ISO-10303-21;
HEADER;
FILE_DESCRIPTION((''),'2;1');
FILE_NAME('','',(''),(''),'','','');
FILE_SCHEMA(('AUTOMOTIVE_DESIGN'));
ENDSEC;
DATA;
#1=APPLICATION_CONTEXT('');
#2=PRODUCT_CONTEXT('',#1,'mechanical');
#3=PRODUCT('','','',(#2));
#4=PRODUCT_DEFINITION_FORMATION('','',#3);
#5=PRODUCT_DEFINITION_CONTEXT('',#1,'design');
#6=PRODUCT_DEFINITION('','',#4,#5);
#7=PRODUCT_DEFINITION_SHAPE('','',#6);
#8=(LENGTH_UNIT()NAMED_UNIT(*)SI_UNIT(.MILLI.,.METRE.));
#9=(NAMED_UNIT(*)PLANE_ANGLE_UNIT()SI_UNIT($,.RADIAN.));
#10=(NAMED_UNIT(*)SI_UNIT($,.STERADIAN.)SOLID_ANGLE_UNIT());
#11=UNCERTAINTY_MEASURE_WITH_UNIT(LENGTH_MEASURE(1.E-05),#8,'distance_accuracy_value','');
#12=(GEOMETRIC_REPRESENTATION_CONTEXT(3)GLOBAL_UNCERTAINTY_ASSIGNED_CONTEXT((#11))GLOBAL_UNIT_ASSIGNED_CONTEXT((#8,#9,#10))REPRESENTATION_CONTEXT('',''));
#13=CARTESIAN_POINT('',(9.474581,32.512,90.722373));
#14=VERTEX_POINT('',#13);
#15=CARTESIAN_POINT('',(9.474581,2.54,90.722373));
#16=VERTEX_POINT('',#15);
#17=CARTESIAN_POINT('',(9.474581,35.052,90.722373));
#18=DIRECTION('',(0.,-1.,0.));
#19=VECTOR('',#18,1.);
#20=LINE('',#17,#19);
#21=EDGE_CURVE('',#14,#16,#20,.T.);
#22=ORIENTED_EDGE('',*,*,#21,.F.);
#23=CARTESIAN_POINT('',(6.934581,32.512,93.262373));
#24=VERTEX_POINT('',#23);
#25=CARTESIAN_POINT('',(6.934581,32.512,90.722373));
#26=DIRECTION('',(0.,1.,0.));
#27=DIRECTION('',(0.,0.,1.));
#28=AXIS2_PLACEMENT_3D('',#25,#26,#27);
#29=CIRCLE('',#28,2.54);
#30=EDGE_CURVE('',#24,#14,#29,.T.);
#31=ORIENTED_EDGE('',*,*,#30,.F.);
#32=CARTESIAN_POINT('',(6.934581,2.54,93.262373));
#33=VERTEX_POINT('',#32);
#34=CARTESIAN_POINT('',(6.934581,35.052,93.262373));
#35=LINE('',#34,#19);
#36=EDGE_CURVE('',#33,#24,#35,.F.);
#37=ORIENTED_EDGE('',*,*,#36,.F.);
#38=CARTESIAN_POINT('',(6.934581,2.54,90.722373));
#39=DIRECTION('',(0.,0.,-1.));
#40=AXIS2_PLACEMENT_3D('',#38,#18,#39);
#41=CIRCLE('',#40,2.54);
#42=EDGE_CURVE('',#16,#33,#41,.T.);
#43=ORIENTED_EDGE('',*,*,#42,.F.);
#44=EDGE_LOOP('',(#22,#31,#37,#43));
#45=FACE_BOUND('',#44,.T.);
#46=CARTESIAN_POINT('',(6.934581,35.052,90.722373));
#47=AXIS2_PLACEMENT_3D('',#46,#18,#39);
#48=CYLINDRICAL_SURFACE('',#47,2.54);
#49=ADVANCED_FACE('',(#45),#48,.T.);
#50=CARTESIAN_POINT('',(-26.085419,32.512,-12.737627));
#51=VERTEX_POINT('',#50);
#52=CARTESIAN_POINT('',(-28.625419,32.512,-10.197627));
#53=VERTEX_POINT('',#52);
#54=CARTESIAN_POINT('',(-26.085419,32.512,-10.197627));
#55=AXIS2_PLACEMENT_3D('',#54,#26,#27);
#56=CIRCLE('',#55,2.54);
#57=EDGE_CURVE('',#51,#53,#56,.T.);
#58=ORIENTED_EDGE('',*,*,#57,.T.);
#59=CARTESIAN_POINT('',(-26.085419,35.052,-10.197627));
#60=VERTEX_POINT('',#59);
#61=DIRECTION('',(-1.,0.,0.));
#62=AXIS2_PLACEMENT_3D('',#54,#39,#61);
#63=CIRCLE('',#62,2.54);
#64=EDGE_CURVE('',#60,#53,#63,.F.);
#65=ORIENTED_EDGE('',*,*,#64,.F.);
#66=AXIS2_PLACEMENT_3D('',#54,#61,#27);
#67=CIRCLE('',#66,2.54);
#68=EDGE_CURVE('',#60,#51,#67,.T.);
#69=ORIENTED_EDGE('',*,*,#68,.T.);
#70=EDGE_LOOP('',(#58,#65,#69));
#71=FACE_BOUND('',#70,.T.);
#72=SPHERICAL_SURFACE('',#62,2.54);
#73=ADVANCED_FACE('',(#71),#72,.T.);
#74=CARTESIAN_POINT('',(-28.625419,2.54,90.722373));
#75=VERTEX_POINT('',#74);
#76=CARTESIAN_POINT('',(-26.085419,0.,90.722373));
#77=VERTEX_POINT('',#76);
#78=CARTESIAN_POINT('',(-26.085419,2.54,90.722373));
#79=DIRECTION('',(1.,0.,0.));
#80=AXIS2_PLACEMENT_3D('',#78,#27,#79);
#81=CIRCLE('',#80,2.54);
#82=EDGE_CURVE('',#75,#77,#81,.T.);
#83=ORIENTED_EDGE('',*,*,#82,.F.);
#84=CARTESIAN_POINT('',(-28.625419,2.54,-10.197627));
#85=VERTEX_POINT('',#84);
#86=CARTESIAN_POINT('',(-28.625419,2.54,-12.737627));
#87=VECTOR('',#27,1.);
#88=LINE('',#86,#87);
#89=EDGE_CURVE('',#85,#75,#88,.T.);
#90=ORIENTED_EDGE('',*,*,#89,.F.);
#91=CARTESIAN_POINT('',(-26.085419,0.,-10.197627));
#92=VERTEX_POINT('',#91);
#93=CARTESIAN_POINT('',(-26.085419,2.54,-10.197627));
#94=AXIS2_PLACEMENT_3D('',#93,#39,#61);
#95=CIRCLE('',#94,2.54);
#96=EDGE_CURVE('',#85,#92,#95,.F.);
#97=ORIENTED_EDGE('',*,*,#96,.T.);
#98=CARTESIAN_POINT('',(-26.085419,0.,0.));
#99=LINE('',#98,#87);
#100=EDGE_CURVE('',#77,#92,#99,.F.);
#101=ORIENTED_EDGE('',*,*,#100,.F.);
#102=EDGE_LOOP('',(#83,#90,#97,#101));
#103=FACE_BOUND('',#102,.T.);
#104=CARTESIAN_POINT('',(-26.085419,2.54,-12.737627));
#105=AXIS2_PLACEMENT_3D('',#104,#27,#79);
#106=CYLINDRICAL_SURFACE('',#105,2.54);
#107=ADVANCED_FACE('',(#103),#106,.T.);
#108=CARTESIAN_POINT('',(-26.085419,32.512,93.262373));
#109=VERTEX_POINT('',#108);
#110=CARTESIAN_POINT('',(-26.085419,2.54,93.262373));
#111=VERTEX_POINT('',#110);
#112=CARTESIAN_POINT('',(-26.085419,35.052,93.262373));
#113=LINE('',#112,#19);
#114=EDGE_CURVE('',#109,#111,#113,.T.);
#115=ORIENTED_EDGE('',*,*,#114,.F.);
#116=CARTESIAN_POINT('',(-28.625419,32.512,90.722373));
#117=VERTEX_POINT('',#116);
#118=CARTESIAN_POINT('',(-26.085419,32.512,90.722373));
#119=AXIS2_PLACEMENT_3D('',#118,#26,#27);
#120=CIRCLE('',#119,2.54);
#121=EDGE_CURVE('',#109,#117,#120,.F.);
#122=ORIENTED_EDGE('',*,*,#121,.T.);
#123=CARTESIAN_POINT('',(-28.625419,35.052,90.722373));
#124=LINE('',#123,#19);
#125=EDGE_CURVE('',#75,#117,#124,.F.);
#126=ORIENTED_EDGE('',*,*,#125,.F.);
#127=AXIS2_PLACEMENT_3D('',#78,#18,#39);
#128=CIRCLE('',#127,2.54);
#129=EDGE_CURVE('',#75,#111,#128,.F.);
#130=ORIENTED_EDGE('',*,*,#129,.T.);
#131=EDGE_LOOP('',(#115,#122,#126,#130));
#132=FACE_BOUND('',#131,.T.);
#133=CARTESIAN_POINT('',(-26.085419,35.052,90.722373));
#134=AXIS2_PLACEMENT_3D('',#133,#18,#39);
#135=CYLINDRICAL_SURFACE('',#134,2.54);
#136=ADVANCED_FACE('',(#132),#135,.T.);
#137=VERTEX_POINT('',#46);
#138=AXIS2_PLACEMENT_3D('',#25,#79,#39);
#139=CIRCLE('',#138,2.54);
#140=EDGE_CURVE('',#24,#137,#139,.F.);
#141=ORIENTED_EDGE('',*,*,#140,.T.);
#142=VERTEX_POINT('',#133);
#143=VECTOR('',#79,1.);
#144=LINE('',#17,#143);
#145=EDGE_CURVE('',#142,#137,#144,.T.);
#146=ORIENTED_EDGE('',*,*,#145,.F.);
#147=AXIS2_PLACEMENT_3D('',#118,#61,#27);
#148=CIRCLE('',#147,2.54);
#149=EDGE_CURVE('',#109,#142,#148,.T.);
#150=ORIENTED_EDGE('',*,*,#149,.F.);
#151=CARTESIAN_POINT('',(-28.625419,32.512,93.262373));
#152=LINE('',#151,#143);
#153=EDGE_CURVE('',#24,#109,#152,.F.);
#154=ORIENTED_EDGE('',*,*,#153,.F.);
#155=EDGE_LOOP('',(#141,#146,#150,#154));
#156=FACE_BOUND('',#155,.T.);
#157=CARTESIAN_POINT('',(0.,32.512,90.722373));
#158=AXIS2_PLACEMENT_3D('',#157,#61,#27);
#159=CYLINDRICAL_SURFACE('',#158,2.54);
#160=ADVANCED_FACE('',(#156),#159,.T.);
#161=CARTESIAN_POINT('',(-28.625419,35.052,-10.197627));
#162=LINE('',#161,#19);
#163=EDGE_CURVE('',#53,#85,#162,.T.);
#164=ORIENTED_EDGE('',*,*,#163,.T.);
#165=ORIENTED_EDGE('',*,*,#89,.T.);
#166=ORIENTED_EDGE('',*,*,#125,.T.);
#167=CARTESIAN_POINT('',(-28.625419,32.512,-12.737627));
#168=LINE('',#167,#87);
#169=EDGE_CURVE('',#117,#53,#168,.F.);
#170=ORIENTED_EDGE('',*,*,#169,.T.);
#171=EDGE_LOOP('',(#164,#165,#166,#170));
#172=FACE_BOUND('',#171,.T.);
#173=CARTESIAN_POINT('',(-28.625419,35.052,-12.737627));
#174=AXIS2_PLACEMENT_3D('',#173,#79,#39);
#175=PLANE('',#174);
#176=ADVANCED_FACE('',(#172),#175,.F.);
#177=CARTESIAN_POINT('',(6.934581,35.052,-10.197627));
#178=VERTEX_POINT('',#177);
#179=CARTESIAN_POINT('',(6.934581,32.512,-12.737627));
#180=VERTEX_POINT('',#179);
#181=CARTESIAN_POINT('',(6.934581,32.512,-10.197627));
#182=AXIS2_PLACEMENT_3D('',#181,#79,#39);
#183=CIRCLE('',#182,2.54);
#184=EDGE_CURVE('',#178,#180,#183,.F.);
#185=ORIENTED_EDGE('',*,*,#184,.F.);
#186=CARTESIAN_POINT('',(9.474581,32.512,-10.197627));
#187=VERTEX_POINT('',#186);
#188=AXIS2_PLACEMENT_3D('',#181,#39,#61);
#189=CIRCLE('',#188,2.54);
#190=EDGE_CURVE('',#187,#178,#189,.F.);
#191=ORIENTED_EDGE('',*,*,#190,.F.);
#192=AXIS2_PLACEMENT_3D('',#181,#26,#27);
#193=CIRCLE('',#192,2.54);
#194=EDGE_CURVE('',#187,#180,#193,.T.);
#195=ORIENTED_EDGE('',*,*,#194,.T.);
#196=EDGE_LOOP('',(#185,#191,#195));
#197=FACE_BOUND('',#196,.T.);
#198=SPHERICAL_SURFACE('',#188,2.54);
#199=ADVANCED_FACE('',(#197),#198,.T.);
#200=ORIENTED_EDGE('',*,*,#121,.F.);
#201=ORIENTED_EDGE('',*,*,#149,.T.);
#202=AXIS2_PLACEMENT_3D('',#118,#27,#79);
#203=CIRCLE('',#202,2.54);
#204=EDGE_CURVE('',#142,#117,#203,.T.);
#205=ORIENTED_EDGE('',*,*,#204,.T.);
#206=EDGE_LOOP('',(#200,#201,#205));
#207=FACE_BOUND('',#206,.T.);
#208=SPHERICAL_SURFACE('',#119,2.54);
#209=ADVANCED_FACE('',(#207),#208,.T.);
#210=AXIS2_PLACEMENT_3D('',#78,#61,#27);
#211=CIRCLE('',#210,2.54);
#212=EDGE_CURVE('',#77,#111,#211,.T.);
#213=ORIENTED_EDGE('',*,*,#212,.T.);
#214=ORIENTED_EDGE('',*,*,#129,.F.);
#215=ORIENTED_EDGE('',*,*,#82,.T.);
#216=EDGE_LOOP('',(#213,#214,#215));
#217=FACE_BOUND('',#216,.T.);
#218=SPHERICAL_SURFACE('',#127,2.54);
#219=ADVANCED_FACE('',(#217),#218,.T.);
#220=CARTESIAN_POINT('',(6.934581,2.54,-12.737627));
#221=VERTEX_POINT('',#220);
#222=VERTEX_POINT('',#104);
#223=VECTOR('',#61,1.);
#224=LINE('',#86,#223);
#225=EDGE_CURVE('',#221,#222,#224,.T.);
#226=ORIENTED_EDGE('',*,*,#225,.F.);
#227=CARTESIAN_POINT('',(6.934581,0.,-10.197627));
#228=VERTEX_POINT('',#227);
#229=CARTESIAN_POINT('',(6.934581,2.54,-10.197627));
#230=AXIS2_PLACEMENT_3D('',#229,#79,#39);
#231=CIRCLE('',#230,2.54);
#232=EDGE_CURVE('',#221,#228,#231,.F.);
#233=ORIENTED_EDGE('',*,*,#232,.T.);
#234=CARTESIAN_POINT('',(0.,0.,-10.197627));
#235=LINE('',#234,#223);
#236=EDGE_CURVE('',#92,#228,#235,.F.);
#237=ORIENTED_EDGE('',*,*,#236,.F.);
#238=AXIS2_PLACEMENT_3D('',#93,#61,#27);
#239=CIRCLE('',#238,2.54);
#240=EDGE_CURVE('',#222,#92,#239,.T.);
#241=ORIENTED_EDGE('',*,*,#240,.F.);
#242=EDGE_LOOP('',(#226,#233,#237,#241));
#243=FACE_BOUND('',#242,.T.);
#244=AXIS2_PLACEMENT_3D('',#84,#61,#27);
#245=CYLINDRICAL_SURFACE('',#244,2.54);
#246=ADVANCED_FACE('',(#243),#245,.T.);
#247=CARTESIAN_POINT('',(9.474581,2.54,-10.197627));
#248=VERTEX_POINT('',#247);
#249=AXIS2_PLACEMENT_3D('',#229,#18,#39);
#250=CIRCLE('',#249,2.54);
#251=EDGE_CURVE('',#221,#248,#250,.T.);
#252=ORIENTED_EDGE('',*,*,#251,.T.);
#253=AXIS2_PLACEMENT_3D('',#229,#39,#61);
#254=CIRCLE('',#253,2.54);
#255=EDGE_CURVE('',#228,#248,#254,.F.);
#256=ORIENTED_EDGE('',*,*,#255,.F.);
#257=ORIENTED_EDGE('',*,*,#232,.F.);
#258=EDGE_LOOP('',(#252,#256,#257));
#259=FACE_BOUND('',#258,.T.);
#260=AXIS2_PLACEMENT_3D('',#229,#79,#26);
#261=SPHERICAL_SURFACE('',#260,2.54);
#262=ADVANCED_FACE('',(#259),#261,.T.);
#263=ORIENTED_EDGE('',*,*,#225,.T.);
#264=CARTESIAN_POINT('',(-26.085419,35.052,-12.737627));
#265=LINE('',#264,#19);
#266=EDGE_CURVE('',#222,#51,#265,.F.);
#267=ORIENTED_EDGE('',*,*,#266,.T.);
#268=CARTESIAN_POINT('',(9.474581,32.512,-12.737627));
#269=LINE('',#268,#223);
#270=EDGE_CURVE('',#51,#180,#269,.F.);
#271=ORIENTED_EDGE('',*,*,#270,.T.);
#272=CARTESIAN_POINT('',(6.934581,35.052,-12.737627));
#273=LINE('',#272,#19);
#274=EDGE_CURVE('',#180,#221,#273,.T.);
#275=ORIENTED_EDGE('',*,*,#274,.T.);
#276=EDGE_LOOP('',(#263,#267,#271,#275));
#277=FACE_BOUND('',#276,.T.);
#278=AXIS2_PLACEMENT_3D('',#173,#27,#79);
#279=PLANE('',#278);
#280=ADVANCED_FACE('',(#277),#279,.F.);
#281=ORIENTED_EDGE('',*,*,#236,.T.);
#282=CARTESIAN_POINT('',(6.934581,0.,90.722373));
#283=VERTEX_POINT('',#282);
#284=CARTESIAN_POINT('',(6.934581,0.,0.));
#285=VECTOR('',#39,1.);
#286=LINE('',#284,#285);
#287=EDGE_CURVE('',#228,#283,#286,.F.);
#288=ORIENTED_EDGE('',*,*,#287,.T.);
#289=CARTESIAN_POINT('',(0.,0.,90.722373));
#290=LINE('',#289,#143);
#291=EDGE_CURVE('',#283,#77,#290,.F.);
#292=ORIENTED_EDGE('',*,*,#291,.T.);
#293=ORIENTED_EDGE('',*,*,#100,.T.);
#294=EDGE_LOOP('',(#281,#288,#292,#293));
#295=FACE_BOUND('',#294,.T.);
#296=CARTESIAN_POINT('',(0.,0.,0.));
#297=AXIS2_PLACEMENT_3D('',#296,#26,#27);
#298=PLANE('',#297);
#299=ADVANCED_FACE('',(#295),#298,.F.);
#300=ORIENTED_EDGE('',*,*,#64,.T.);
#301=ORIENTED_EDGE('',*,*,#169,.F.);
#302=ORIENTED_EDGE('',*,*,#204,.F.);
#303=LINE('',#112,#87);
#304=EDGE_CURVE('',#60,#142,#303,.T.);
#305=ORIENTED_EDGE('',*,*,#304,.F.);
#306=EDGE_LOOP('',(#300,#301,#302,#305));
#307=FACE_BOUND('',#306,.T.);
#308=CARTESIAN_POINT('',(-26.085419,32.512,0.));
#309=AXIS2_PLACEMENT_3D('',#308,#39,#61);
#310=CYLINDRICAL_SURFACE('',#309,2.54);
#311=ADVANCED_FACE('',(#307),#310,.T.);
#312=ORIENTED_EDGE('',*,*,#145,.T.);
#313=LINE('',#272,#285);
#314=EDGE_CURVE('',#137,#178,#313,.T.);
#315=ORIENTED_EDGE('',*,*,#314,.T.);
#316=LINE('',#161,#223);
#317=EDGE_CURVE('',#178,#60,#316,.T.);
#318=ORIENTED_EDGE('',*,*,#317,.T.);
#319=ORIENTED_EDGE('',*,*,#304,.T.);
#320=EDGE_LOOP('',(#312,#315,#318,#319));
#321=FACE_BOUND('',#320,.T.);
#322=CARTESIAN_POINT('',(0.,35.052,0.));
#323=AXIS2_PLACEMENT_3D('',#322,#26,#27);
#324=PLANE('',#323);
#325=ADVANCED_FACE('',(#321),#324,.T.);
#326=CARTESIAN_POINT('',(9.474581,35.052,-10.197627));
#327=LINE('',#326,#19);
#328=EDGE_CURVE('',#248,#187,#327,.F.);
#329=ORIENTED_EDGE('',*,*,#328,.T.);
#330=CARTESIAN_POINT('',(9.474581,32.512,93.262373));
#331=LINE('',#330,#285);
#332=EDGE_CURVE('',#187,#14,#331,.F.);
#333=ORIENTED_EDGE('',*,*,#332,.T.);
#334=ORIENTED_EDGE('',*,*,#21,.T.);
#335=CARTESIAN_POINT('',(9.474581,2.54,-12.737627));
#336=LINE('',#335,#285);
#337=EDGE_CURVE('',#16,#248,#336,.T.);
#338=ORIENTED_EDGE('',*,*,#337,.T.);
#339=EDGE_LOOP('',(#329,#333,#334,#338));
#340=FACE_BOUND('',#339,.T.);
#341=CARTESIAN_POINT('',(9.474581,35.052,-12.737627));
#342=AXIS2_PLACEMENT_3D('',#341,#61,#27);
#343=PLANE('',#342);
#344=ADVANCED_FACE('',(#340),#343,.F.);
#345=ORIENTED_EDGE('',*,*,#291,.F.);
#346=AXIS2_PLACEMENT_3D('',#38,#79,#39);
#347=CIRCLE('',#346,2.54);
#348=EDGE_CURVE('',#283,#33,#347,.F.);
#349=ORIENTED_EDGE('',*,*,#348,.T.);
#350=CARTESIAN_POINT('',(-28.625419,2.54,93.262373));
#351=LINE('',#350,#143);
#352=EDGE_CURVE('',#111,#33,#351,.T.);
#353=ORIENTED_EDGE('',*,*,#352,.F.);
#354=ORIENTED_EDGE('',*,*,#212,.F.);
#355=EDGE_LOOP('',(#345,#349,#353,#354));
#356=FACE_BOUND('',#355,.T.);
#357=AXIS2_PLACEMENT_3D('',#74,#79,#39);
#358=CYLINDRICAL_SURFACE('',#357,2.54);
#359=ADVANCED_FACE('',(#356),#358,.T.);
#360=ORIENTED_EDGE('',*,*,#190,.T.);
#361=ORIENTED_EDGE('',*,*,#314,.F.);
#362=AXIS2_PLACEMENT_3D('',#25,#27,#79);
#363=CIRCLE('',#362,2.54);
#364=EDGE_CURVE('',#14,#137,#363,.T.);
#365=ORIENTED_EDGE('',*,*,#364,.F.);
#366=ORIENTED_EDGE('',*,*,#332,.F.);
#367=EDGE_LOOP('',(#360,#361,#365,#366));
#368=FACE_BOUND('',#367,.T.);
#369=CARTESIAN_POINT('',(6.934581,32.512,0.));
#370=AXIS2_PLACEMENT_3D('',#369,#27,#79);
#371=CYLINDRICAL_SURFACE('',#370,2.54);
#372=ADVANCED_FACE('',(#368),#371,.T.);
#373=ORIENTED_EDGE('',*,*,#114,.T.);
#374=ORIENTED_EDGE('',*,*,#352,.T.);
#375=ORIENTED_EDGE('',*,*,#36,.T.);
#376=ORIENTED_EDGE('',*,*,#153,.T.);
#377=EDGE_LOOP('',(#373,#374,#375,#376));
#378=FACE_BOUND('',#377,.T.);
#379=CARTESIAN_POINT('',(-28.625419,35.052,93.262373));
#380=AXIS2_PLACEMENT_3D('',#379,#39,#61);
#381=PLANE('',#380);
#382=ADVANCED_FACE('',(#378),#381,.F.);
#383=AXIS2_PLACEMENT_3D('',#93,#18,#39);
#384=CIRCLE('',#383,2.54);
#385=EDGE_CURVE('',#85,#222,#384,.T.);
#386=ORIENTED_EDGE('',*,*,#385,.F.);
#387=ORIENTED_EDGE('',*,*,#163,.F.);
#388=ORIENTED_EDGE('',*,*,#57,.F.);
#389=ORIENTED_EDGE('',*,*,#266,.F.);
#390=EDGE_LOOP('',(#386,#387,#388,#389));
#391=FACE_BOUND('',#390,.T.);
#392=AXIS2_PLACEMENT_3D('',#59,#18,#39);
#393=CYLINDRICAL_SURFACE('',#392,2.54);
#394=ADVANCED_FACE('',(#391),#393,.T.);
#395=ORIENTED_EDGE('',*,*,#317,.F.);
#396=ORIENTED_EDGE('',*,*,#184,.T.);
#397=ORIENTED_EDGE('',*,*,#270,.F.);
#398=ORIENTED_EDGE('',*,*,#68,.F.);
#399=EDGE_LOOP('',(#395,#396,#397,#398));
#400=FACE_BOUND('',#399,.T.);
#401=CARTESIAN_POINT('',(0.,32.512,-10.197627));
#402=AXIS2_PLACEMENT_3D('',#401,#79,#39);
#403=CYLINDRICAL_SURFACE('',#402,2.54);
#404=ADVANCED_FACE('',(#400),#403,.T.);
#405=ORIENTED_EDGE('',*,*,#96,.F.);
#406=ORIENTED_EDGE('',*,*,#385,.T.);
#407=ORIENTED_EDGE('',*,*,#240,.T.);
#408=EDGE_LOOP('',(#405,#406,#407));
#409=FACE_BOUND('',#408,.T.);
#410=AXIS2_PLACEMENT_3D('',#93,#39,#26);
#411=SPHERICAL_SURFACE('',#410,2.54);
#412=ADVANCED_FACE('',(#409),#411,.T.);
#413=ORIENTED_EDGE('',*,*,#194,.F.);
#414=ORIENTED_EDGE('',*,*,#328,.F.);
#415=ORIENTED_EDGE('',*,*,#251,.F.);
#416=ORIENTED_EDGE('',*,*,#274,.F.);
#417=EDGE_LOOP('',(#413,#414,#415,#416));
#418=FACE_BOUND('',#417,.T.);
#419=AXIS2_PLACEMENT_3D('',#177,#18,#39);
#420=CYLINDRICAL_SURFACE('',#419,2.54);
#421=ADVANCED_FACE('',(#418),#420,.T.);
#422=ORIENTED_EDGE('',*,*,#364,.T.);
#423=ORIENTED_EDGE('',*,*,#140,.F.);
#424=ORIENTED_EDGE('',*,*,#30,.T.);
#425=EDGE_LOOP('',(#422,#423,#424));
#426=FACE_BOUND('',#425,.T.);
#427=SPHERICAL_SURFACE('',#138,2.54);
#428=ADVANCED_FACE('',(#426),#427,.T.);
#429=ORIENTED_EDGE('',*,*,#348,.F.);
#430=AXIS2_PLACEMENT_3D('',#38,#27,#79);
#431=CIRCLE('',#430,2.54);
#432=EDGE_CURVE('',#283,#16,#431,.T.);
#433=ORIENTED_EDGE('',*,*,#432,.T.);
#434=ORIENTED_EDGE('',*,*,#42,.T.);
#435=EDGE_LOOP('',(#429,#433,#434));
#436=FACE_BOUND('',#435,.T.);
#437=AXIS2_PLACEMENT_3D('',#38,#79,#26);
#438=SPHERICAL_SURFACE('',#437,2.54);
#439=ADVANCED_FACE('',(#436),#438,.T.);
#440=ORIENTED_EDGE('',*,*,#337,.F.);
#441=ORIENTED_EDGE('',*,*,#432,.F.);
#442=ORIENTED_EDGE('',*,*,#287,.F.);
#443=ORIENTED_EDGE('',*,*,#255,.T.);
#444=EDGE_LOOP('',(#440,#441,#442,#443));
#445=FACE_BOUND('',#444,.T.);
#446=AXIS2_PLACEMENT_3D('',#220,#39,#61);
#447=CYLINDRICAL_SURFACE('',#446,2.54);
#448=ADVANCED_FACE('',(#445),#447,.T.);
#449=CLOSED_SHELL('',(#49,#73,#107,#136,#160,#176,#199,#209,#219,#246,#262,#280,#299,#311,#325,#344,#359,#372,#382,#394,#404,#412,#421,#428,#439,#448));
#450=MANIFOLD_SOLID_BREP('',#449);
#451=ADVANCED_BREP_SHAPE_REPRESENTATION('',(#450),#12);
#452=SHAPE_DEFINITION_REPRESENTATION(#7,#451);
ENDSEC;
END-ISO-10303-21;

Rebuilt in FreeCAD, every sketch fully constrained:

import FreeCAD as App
import Part
import Sketcher

V = App.Vector
Q = App.Units.Quantity


def add_polygon(sketch, points):
    """Adds a closed chain of lines whose ends are joined by coincident constraints."""
    first, n = sketch.GeometryCount, len(points)
    for a, b in zip(points, points[1:] + points[:1]):
        sketch.addGeometry(Part.LineSegment(App.Vector(*a, 0), App.Vector(*b, 0)), False)
    for i in range(n):
        sketch.addConstraint(Sketcher.Constraint("Coincident", first + i, 2, first + (i + 1) % n, 1))

doc = App.newDocument("Part")
params = doc.addObject("Spreadsheet::Sheet", "Params")
for row, (alias, value) in enumerate([
    ("sketch1_width", "1.5 in"),
    ("pad1_length", "1.38 in"),
    ("fillet_radius", "0.1 in"),
], start=1):
    params.set(f"A{row}", alias)
    params.set(f"B{row}", "=" + value)
    params.setAlias(f"B{row}", alias)

body = doc.addObject("PartDesign::Body", "Body")

# Sketch on XZ plane
sketch1 = body.newObject("Sketcher::SketchObject", "Sketch")
sketch1.AttachmentSupport = (doc.getObject("XZ_Plane"), [""])
sketch1.MapMode = "FlatFace"
add_polygon(sketch1, [(-29, -13), (-29, 93), (9, 93), (9, -13)])  # lines 0-3
sketch1.addConstraint([
    Sketcher.Constraint("Vertical", 0),
    Sketcher.Constraint("Horizontal", 1),
    Sketcher.Constraint("Vertical", 2),
    Sketcher.Constraint("Horizontal", 3),
    Sketcher.Constraint("DistanceX", 1, 1, 1, 2, Q("1.5 in")),
    Sketcher.Constraint("DistanceY", 0, 1, 0, 2, Q("106 mm")),
    Sketcher.Constraint("DistanceX", 0, 2, -1, 1, Q("28.625419 mm")),
    Sketcher.Constraint("DistanceY", -1, 1, 0, 2, Q("93.262373 mm")),
])
sketch1.setExpression("Constraints[8]", "Params.sketch1_width")
pad1 = body.newObject("PartDesign::Pad", "Pad")
pad1.Profile = sketch1
pad1.setExpression("Length", "Params.pad1_length")
pad1.Reversed = True
doc.recompute()

fillet = body.newObject("PartDesign::Fillet", "Fillet")
fillet.Base = (pad1, ["Edge1"])
fillet.UseAllEdges = True
fillet.setExpression("Radius", "Params.fillet_radius")

doc.recompute()
